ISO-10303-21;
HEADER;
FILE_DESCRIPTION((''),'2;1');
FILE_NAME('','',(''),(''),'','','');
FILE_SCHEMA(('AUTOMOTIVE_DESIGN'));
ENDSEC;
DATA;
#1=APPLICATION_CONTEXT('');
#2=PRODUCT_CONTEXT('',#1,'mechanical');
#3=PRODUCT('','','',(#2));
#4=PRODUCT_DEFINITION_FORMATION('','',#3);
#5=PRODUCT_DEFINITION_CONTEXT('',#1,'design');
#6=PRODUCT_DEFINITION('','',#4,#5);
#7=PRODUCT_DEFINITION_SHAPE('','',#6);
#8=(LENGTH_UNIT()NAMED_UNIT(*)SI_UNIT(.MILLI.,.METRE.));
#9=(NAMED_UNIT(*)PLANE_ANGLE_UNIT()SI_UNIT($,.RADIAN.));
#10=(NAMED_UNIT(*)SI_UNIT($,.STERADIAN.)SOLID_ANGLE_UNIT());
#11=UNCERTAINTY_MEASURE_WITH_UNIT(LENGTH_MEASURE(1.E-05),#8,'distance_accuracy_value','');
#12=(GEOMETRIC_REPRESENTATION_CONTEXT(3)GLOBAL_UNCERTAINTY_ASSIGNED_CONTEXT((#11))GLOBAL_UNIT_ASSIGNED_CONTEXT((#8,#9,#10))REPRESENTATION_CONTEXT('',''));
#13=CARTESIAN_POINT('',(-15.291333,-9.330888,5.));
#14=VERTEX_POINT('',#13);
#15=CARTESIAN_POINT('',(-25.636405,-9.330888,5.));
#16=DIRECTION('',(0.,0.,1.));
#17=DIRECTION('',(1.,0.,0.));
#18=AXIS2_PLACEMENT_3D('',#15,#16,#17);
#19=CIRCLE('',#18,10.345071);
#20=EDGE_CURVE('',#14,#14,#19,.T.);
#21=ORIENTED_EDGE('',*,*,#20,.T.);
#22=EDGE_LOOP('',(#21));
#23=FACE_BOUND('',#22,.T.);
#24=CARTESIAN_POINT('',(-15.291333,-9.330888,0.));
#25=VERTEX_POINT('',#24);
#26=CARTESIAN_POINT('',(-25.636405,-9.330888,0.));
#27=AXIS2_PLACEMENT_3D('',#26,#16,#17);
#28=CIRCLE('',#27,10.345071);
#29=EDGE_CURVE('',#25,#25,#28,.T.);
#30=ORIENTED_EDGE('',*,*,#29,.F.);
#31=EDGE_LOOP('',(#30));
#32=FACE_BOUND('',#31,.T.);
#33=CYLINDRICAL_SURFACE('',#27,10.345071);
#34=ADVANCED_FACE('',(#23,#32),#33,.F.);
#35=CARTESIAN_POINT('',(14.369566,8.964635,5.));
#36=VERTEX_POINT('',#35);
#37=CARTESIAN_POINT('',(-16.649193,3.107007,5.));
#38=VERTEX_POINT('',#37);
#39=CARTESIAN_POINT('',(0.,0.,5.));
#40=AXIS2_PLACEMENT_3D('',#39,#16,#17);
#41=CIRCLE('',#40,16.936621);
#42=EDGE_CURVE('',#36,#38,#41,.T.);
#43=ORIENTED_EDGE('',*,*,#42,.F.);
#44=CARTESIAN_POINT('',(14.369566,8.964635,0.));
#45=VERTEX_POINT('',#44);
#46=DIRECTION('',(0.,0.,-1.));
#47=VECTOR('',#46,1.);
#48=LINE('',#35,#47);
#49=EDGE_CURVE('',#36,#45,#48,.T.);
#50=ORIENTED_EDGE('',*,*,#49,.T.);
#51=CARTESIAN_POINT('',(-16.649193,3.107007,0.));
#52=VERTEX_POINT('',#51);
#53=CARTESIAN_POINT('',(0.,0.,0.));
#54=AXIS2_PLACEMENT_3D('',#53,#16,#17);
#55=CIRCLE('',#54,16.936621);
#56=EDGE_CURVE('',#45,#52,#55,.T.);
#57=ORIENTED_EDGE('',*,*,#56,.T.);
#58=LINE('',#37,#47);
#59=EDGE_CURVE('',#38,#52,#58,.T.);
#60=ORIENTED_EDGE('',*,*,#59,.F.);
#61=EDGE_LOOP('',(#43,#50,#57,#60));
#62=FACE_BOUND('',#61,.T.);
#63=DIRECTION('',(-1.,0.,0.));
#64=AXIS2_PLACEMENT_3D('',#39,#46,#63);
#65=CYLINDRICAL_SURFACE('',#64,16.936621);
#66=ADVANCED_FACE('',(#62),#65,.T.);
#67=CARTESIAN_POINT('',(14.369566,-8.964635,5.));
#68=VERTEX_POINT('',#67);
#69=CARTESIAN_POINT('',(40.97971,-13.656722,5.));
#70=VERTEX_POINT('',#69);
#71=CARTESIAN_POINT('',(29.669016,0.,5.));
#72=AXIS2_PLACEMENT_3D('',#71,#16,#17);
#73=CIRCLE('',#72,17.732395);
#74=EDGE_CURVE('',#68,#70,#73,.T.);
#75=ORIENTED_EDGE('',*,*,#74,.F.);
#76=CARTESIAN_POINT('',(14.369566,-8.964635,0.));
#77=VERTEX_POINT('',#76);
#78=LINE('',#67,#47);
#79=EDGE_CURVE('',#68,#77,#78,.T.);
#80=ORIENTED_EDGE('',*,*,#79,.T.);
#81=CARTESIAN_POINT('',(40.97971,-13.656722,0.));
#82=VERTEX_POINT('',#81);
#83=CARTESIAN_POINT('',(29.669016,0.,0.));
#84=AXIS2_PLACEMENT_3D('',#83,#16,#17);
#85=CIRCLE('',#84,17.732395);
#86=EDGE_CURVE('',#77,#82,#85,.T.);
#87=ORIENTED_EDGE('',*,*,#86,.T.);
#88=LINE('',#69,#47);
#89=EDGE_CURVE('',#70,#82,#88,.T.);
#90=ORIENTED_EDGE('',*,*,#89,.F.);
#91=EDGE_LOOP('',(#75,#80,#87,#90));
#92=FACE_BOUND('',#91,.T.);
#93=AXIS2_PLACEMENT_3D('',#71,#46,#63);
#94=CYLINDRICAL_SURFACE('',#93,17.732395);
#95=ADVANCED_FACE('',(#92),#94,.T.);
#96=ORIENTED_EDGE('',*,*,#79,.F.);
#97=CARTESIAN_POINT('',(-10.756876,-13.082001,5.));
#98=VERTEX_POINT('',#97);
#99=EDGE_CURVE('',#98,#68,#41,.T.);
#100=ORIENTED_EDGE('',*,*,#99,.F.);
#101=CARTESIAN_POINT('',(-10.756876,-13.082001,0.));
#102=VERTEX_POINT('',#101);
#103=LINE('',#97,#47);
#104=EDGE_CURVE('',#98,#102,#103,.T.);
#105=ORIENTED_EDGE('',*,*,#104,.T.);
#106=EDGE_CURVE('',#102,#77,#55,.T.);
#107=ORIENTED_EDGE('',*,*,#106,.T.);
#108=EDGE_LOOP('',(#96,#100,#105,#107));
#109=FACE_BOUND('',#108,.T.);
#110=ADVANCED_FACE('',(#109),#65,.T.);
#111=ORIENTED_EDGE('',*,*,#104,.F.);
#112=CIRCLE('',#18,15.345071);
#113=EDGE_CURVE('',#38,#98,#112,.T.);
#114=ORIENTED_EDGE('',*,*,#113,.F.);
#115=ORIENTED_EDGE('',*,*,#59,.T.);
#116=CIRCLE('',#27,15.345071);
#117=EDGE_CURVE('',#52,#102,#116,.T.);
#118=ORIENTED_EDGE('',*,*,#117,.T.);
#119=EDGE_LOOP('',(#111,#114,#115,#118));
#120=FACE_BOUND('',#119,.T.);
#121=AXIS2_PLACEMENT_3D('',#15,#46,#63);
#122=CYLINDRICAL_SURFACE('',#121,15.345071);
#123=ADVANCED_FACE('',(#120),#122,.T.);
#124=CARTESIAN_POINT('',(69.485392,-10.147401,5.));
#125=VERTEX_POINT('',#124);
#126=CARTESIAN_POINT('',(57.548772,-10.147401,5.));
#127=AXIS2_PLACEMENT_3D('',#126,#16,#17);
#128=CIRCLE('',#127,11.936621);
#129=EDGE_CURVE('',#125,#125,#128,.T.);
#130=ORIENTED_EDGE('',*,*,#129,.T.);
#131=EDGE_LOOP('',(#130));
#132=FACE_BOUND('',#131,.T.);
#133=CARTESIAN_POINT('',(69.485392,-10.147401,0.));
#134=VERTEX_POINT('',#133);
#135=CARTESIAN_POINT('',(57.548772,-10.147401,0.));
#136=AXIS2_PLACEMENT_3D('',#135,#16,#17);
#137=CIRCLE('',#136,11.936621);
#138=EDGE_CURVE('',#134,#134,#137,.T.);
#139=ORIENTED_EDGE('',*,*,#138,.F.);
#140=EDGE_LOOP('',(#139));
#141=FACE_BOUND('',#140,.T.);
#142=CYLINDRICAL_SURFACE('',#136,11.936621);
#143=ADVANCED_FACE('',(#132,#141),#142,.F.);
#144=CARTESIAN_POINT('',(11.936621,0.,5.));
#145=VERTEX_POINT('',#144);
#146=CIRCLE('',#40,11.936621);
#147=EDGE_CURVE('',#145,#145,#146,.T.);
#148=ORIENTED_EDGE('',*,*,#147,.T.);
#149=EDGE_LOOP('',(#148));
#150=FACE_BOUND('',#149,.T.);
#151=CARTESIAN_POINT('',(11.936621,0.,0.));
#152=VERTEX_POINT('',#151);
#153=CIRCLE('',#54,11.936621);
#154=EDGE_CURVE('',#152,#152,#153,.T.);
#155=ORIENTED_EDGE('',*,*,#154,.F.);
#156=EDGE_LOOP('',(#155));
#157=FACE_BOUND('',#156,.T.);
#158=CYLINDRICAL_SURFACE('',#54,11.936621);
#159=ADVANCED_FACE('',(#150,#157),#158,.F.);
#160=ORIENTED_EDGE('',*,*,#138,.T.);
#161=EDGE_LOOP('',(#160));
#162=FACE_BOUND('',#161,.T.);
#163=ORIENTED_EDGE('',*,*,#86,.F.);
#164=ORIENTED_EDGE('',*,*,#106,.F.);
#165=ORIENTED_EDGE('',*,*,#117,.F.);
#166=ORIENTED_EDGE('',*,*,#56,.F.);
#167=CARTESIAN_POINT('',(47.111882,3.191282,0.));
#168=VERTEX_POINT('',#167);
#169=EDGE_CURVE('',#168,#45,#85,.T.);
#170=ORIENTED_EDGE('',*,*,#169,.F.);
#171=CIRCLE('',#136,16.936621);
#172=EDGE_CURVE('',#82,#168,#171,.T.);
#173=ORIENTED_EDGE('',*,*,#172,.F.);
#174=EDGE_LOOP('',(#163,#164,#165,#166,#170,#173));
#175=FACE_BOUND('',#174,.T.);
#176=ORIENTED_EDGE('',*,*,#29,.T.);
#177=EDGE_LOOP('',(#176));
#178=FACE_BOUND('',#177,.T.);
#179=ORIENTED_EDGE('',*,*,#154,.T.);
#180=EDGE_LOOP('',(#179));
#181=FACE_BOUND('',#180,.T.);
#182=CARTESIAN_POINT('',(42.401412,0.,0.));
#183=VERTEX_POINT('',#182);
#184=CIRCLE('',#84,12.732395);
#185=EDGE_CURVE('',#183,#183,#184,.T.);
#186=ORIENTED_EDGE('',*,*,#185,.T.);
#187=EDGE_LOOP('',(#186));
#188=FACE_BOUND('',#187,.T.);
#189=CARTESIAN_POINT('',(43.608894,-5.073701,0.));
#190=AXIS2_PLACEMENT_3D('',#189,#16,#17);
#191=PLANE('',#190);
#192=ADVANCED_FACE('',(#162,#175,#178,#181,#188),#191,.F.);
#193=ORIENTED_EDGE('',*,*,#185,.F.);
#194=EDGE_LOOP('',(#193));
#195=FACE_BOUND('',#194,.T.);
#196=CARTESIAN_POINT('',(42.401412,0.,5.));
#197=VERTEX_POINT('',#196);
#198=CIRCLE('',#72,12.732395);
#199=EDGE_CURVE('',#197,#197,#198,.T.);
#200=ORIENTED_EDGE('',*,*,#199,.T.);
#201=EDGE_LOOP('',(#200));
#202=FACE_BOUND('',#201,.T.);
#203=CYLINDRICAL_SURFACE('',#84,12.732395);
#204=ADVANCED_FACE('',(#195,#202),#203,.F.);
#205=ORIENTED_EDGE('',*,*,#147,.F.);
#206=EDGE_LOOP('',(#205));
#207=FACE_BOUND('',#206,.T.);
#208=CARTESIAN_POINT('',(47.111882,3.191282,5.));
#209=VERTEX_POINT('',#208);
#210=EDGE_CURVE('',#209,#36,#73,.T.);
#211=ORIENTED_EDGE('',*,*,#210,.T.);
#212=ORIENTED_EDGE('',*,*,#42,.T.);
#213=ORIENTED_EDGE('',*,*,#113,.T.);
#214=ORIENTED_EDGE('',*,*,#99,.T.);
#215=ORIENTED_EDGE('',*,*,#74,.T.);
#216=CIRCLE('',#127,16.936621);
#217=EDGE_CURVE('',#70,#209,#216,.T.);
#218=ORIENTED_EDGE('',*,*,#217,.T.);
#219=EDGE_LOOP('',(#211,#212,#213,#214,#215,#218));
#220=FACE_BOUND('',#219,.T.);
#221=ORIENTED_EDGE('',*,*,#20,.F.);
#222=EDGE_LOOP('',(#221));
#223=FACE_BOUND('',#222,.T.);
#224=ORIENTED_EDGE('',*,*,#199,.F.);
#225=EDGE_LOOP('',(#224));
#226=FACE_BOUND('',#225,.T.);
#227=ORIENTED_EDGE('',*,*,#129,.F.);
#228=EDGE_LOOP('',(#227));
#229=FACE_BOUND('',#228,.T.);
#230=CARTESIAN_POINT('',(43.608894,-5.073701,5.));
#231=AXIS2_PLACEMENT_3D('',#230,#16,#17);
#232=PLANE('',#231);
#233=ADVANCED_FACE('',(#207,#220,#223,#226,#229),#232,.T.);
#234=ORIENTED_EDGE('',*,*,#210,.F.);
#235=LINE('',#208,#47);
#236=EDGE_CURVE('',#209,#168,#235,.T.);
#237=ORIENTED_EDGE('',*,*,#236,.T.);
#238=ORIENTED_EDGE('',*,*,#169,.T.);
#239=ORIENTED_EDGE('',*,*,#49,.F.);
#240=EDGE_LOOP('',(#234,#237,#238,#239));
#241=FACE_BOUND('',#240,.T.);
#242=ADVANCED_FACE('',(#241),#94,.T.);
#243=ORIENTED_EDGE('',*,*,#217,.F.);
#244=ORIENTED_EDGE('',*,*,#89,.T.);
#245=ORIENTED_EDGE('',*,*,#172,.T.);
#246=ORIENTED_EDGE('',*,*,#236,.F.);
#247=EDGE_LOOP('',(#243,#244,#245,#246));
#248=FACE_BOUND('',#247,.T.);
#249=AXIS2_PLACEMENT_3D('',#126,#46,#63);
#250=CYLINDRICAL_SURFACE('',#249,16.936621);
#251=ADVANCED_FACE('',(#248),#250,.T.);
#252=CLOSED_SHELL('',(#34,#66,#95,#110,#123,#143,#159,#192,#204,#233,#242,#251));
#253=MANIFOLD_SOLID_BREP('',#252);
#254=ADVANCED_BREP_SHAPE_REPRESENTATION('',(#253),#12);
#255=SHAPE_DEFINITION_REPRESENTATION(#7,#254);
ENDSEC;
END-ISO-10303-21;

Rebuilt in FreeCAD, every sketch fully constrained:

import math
import FreeCAD as App
import Part
import Sketcher

V = App.Vector
Q = App.Units.Quantity

doc = App.newDocument("Part")
params = doc.addObject("Spreadsheet::Sheet", "Params")
for row, (alias, value) in enumerate([
    ("pad1_length", "5 mm"),
    ("pocket1_length", "5 mm"),
    ("pocket2_length", "5 mm"),
    ("pocket3_length", "5 mm"),
    ("pocket4_length", "5 mm"),
], start=1):
    params.set(f"A{row}", alias)
    params.set(f"B{row}", "=" + value)
    params.setAlias(f"B{row}", alias)

body = doc.addObject("PartDesign::Body", "Body")

# Sketch on XY plane
sketch1 = body.newObject("Sketcher::SketchObject", "Sketch")
sketch1.AttachmentSupport = (doc.getObject("XY_Plane"), [""])
sketch1.MapMode = "FlatFace"
sketch1.addGeometry([
    Part.ArcOfCircle(Part.Circle(V(0, 0, 0), V(0, 0, 1), 17), math.radians(-129), math.radians(-32)),  # 0
    Part.ArcOfCircle(Part.Circle(V(30, 0, 0), V(0, 0, 1), 18), math.radians(-150), math.radians(-50)),  # 1
    Part.ArcOfCircle(Part.Circle(V(58, -10, 0), V(0, 0, 1), 17), math.radians(-168), math.radians(128)),  # 2
    Part.ArcOfCircle(Part.Circle(V(30, 0, 0), V(0, 0, 1), 18), math.radians(10), math.radians(150)),  # 3
    Part.ArcOfCircle(Part.Circle(V(0, 0, 0), V(0, 0, 1), 17), math.radians(32), math.radians(169)),  # 4
    Part.ArcOfCircle(Part.Circle(V(-26, -9, 0), V(0, 0, 1), 15), math.radians(54), math.radians(346)),  # 5
], False)
sketch1.addConstraint([
    Sketcher.Constraint("Coincident", 0, 2, 1, 1),
    Sketcher.Constraint("Coincident", 1, 2, 2, 1),
    Sketcher.Constraint("Coincident", 2, 2, 3, 1),
    Sketcher.Constraint("Coincident", 3, 2, 4, 1),
    Sketcher.Constraint("Coincident", 4, 2, 5, 1),
    Sketcher.Constraint("Coincident", 5, 2, 0, 1),
    Sketcher.Constraint("Coincident", 0, 3, -1, 1),
    Sketcher.Constraint("Coincident", 4, 3, -1, 1),
    Sketcher.Constraint("Coincident", 3, 3, 1, 3),
    Sketcher.Constraint("Equal", 0, 2),
    Sketcher.Constraint("Equal", 1, 3),
    Sketcher.Constraint("Equal", 2, 4),
    Sketcher.Constraint("PointOnObject", 1, 3, -1),
    Sketcher.Constraint("Radius", 0, Q("16.936621 mm")),
    Sketcher.Constraint("Radius", 5, Q("15.345071 mm")),
    Sketcher.Constraint("DistanceY", 5, 2, -1, 1, Q("13.082001 mm")),
    Sketcher.Constraint("Radius", 1, Q("17.732395 mm")),
    Sketcher.Constraint("DistanceY", 2, 3, -1, 1, Q("10.147401 mm")),
    Sketcher.Constraint("DistanceX", -1, 1, 2, 3, Q("57.548772 mm")),
    Sketcher.Constraint("DistanceY", 5, 3, -1, 1, Q("9.330888 mm")),
    Sketcher.Constraint("DistanceX", -1, 1, 1, 2, Q("40.97971 mm")),
])
pad1 = body.newObject("PartDesign::Pad", "Pad")
pad1.Profile = sketch1
pad1.setExpression("Length", "Params.pad1_length")

# Sketch on XY plane
sketch2 = body.newObject("Sketcher::SketchObject", "Sketch001")
sketch2.AttachmentSupport = (doc.getObject("XY_Plane"), [""])
sketch2.MapMode = "FlatFace"
sketch2.AttachmentOffset = App.Placement(V(0, 0, 5), App.Rotation())
sketch2.addGeometry(Part.Circle(V(-26, -9, 0), V(0, 0, 1), 10), False)
sketch2.addConstraint([
    Sketcher.Constraint("Diameter", 0, Q("20.690143 mm")),
    Sketcher.Constraint("DistanceY", 0, 3, -1, 1, Q("9.330888 mm")),
    Sketcher.Constraint("DistanceX", 0, 3, -1, 1, Q("25.636405 mm")),
])
pocket1 = body.newObject("PartDesign::Pocket", "Pocket")
pocket1.Profile = sketch2
pocket1.setExpression("Length", "Params.pocket1_length")

# Sketch on XY plane
sketch3 = body.newObject("Sketcher::SketchObject", "Sketch002")
sketch3.AttachmentSupport = (doc.getObject("XY_Plane"), [""])
sketch3.MapMode = "FlatFace"
sketch3.AttachmentOffset = App.Placement(V(0, 0, 5), App.Rotation())
sketch3.addGeometry(Part.Circle(V(0, 0, 0), V(0, 0, 1), 12), False)
sketch3.addConstraint([
    Sketcher.Constraint("Coincident", 0, 3, -1, 1),
    Sketcher.Constraint("Diameter", 0, Q("23.873241 mm")),
])
pocket2 = body.newObject("PartDesign::Pocket", "Pocket001")
pocket2.Profile = sketch3
pocket2.setExpression("Length", "Params.pocket2_length")

# Sketch on XY plane
sketch4 = body.newObject("Sketcher::SketchObject", "Sketch003")
sketch4.AttachmentSupport = (doc.getObject("XY_Plane"), [""])
sketch4.MapMode = "FlatFace"
sketch4.AttachmentOffset = App.Placement(V(0, 0, 5), App.Rotation())
sketch4.addGeometry(Part.Circle(V(30, 0, 0), V(0, 0, 1), 13), False)
sketch4.addConstraint([
    Sketcher.Constraint("PointOnObject", 0, 3, -1),
    Sketcher.Constraint("Diameter", 0, Q("25.464791 mm")),
    Sketcher.Constraint("DistanceX", -1, 1, 0, 3, Q("29.669016 mm")),
])
pocket3 = body.newObject("PartDesign::Pocket", "Pocket002")
pocket3.Profile = sketch4
pocket3.setExpression("Length", "Params.pocket3_length")

# Sketch on XY plane
sketch5 = body.newObject("Sketcher::SketchObject", "Sketch004")
sketch5.AttachmentSupport = (doc.getObject("XY_Plane"), [""])
sketch5.MapMode = "FlatFace"
sketch5.AttachmentOffset = App.Placement(V(0, 0, 5), App.Rotation())
sketch5.addGeometry(Part.Circle(V(58, -10, 0), V(0, 0, 1), 12), False)
sketch5.addConstraint([
    Sketcher.Constraint("Diameter", 0, Q("23.873241 mm")),
    Sketcher.Constraint("DistanceY", 0, 3, -1, 1, Q("10.147401 mm")),
    Sketcher.Constraint("DistanceX", -1, 1, 0, 3, Q("57.548772 mm")),
])
pocket4 = body.newObject("PartDesign::Pocket", "Pocket003")
pocket4.Profile = sketch5
pocket4.setExpression("Length", "Params.pocket4_length")

doc.recompute()
